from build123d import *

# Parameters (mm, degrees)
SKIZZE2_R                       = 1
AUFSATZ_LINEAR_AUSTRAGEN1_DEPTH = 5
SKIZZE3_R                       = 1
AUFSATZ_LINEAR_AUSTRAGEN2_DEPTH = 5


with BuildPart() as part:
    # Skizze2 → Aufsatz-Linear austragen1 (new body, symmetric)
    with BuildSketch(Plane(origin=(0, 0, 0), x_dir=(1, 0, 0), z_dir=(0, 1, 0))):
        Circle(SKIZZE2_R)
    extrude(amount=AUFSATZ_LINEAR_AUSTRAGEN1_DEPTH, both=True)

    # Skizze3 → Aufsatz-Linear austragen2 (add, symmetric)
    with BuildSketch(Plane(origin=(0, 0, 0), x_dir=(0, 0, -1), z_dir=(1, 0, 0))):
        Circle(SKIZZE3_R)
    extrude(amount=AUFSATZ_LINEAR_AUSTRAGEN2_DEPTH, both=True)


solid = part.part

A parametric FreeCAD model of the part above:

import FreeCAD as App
import Part
import Sketcher
Q = App.Units.Quantity

doc = App.newDocument("Part")
body = doc.addObject("PartDesign::Body", "Body")

# Sketch on XZ plane
sketch1 = doc.addObject("Sketcher::SketchObject", "Sketch")
body.addObject(sketch1)
sketch1.AttachmentSupport = (doc.XZ_Plane, [""])
sketch1.MapMode = "FlatFace"
sketch1.addGeometry(Part.Circle(App.Vector(0, 0, 0), App.Vector(0, 0, 1), 1), False)
sketch1.addConstraint([
    Sketcher.Constraint("Coincident", 0, 3, -1, 1),
    Sketcher.Constraint("Diameter", 0, Q("2 mm")),
])
pad1 = doc.addObject("PartDesign::Pad", "Pad")
body.addObject(pad1)
pad1.Profile = sketch1
pad1.Length = 10
pad1.Midplane = True

# Sketch on YZ plane
sketch2 = doc.addObject("Sketcher::SketchObject", "Sketch001")
body.addObject(sketch2)
sketch2.AttachmentSupport = (doc.YZ_Plane, [""])
sketch2.MapMode = "FlatFace"
sketch2.addGeometry(Part.Circle(App.Vector(0, 0, 0), App.Vector(0, 0, 1), 1), False)
sketch2.addConstraint([
    Sketcher.Constraint("Coincident", 0, 3, -1, 1),
    Sketcher.Constraint("Diameter", 0, Q("2 mm")),
])
pad2 = doc.addObject("PartDesign::Pad", "Pad001")
body.addObject(pad2)
pad2.Profile = sketch2
pad2.Length = 10
pad2.Midplane = True

doc.recompute()
